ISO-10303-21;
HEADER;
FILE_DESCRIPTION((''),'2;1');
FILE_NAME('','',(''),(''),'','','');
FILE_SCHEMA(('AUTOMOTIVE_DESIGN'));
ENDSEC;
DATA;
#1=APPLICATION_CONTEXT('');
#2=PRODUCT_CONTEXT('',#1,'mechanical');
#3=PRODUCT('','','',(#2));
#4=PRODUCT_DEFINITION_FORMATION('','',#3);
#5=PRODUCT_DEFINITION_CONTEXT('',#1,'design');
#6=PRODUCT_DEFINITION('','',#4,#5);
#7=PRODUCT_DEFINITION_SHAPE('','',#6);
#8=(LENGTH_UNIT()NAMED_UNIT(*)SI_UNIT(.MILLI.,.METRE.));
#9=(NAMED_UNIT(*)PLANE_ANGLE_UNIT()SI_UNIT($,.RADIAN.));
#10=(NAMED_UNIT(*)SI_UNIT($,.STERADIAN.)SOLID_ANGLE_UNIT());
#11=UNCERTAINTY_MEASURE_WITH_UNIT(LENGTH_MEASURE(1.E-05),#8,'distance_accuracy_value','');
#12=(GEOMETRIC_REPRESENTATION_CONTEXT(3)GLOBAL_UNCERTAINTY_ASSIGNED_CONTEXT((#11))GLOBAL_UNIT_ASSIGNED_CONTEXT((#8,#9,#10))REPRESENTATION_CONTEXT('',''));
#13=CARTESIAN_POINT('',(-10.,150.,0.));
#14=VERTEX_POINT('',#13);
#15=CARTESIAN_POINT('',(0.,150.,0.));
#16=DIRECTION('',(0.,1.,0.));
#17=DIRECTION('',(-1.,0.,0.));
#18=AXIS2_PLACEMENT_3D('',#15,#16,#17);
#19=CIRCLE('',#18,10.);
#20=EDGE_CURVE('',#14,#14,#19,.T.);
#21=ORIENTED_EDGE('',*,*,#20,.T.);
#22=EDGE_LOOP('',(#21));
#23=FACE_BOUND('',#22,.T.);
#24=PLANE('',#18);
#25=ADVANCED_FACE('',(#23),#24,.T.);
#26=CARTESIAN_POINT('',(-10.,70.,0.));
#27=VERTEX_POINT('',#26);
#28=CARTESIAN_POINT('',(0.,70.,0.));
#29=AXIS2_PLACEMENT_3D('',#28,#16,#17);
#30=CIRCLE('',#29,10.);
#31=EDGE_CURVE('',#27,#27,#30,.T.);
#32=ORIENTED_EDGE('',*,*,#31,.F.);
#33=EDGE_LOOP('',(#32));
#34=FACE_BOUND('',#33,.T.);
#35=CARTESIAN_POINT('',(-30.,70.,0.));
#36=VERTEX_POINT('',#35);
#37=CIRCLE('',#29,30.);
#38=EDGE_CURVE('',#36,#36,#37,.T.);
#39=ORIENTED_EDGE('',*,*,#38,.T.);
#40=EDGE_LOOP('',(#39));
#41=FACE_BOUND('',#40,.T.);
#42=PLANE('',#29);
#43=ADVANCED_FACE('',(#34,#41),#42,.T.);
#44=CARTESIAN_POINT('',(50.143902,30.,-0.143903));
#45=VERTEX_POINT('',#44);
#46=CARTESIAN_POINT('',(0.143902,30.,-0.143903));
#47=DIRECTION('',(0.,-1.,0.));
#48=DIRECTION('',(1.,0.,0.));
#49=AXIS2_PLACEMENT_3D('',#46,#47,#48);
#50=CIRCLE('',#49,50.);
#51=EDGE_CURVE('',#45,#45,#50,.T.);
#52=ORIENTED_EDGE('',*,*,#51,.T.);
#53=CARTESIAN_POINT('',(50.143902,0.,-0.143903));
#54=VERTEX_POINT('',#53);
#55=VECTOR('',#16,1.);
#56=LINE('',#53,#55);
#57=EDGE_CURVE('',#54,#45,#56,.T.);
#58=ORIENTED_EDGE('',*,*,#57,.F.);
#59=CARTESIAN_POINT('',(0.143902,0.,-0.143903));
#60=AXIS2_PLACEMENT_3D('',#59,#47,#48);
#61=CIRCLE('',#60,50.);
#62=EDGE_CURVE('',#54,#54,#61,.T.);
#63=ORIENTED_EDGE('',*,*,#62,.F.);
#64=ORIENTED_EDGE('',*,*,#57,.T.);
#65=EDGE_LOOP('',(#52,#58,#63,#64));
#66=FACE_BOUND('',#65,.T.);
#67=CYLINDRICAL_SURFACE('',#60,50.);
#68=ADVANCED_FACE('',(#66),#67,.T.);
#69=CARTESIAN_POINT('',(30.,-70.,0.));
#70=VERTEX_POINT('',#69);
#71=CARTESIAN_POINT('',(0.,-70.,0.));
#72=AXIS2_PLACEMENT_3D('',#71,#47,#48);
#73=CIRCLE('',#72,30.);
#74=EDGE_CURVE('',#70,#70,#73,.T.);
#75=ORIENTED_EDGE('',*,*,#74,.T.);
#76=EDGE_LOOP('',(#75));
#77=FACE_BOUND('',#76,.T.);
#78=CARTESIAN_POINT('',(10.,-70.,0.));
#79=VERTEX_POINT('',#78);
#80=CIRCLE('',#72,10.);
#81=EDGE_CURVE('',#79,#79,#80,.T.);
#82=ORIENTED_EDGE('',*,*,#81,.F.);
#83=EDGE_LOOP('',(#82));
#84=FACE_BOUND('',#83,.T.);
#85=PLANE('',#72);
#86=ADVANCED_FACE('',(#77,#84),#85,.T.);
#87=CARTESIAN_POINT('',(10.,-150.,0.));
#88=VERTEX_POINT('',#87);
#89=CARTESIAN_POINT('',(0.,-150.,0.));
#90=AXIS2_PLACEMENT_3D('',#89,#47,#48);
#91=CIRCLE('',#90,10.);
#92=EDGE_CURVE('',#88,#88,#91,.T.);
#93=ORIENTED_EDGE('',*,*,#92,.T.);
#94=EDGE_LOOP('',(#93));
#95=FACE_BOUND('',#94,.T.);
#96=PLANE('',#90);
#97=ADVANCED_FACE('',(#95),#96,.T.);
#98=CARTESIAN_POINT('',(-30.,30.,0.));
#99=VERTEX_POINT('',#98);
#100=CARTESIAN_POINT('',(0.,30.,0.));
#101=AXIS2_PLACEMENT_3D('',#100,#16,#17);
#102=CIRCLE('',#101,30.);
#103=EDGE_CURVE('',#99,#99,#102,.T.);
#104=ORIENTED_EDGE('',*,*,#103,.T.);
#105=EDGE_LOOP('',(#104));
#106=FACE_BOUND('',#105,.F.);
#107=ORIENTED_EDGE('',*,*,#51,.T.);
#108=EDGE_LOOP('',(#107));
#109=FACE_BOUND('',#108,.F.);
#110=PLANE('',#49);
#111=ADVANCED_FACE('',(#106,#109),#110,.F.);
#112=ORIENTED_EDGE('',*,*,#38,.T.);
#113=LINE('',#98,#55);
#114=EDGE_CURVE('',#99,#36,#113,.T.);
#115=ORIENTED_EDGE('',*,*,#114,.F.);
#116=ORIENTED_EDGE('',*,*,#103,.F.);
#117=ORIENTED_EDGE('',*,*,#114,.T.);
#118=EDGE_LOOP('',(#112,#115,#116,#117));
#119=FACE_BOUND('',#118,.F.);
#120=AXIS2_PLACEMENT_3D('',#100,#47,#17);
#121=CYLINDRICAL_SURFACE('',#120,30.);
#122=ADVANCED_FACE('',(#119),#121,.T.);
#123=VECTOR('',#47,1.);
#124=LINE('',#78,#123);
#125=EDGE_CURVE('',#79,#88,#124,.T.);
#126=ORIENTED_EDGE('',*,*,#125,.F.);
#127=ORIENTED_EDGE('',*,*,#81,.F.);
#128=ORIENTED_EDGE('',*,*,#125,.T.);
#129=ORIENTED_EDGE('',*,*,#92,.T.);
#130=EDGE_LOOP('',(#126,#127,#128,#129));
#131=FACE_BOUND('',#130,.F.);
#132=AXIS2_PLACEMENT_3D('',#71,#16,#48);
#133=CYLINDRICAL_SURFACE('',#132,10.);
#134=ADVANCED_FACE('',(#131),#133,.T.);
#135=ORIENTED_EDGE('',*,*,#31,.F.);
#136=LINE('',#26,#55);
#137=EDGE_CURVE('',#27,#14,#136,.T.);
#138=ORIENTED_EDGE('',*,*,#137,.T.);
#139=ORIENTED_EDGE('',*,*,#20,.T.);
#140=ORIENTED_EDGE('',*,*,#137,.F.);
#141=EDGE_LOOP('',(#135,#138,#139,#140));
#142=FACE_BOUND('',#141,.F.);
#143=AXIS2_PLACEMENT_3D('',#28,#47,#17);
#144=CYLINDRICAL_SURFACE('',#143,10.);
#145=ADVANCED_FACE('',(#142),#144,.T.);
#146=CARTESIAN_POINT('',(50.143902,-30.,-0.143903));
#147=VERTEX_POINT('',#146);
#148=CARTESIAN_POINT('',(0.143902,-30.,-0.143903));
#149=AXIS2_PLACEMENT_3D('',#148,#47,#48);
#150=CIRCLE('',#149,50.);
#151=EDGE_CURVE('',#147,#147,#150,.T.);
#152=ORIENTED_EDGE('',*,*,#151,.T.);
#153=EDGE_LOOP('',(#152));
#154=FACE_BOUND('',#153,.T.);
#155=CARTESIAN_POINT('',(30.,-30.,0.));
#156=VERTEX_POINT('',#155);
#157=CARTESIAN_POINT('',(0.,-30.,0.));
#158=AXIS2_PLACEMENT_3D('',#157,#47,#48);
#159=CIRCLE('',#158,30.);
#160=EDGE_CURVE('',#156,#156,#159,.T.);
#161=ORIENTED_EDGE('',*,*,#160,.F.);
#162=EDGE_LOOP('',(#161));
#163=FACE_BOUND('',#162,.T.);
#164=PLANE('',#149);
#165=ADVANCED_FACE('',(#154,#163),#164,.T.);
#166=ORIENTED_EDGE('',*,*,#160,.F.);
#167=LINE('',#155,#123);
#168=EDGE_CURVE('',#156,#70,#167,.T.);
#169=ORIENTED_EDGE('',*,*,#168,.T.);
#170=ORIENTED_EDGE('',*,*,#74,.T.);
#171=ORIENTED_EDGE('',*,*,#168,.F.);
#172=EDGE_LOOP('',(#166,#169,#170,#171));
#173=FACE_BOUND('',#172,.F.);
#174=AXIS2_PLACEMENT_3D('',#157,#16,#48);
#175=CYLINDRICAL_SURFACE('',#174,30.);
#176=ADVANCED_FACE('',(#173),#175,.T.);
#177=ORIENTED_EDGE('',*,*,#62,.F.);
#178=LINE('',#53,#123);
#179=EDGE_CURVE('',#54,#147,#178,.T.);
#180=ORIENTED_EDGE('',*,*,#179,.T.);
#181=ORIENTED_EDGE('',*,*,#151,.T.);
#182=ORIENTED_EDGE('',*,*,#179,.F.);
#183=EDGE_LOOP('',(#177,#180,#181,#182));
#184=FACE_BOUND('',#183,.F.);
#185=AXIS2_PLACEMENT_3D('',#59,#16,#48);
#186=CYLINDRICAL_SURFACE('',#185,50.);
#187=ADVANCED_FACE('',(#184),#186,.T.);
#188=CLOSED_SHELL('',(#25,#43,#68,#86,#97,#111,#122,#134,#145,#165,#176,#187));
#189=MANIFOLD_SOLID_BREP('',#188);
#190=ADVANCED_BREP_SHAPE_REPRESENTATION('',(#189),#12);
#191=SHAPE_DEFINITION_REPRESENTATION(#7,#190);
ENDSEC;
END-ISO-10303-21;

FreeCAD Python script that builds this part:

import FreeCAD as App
import Part
import Sketcher

V = App.Vector
Q = App.Units.Quantity

doc = App.newDocument("Part")
body = doc.addObject("PartDesign::Body", "Body")

sketch1 = doc.addObject("Sketcher::SketchObject", "Sketch")
body.addObject(sketch1)
sketch1.AttachmentSupport = (doc.XZ_Plane, [""])
sketch1.MapMode = "FlatFace"
sketch1.addGeometry(Part.Circle(V(0, 0, 0), V(0, 0, 1), 50), False)
sketch1.addConstraint([
    Sketcher.Constraint("Diameter", 0, Q("100 mm")),
    Sketcher.Constraint("DistanceX", -1, 1, 0, 3, Q("0.143902 mm")),
    Sketcher.Constraint("DistanceY", 0, 3, -1, 1, Q("0.143903 mm")),
])
pad1 = doc.addObject("PartDesign::Pad", "Pad")
body.addObject(pad1)
pad1.Profile = sketch1
pad1.Length = 30
pad1.Reversed = True

sketch2 = doc.addObject("Sketcher::SketchObject", "Sketch001")
body.addObject(sketch2)
sketch2.AttachmentSupport = (doc.XZ_Plane, [""])
sketch2.MapMode = "FlatFace"
sketch2.addGeometry(Part.Circle(V(0, 0, 0), V(0, 0, 1), 50), False)
sketch2.addConstraint([
    Sketcher.Constraint("Diameter", 0, Q("100 mm")),
    Sketcher.Constraint("DistanceX", -1, 1, 0, 3, Q("0.143902 mm")),
    Sketcher.Constraint("DistanceY", 0, 3, -1, 1, Q("0.143903 mm")),
])
pad2 = doc.addObject("PartDesign::Pad", "Pad001")
body.addObject(pad2)
pad2.Profile = sketch2
pad2.Length = 30

sketch3 = doc.addObject("Sketcher::SketchObject", "Sketch002")
body.addObject(sketch3)
sketch3.AttachmentSupport = (doc.XZ_Plane, [""])
sketch3.MapMode = "FlatFace"
sketch3.AttachmentOffset = App.Placement(V(0, 0, -30), App.Rotation())
sketch3.addGeometry(Part.Circle(V(0, 0, 0), V(0, 0, 1), 30), False)
sketch3.addConstraint([
    Sketcher.Constraint("Coincident", 0, 3, -1, 1),
    Sketcher.Constraint("Diameter", 0, Q("60 mm")),
])
pad3 = doc.addObject("PartDesign::Pad", "Pad002")
body.addObject(pad3)
pad3.Profile = sketch3
pad3.Length = 40
pad3.Reversed = True

sketch4 = doc.addObject("Sketcher::SketchObject", "Sketch003")
body.addObject(sketch4)
sketch4.AttachmentSupport = (doc.XZ_Plane, [""])
sketch4.MapMode = "FlatFace"
sketch4.AttachmentOffset = App.Placement(V(0, 0, 30), App.Rotation())
sketch4.addGeometry(Part.Circle(V(0, 0, 0), V(0, 0, 1), 30), False)
sketch4.addConstraint([
    Sketcher.Constraint("Coincident", 0, 3, -1, 1),
    Sketcher.Constraint("Diameter", 0, Q("60 mm")),
])
pad4 = doc.addObject("PartDesign::Pad", "Pad003")
body.addObject(pad4)
pad4.Profile = sketch4
pad4.Length = 40

sketch5 = doc.addObject("Sketcher::SketchObject", "Sketch004")
body.addObject(sketch5)
sketch5.AttachmentSupport = (doc.XZ_Plane, [""])
sketch5.MapMode = "FlatFace"
sketch5.AttachmentOffset = App.Placement(V(0, 0, 70), App.Rotation())
sketch5.addGeometry(Part.Circle(V(0, 0, 0), V(0, 0, 1), 10), False)
sketch5.addConstraint([
    Sketcher.Constraint("Coincident", 0, 3, -1, 1),
    Sketcher.Constraint("Diameter", 0, Q("20 mm")),
])
pad5 = doc.addObject("PartDesign::Pad", "Pad004")
body.addObject(pad5)
pad5.Profile = sketch5
pad5.Length = 80

sketch6 = doc.addObject("Sketcher::SketchObject", "Sketch005")
body.addObject(sketch6)
sketch6.AttachmentSupport = (doc.XZ_Plane, [""])
sketch6.MapMode = "FlatFace"
sketch6.AttachmentOffset = App.Placement(V(0, 0, -70), App.Rotation())
sketch6.addGeometry(Part.Circle(V(0, 0, 0), V(0, 0, 1), 10), False)
sketch6.addConstraint([
    Sketcher.Constraint("Coincident", 0, 3, -1, 1),
    Sketcher.Constraint("Diameter", 0, Q("20 mm")),
])
pad6 = doc.addObject("PartDesign::Pad", "Pad005")
body.addObject(pad6)
pad6.Profile = sketch6
pad6.Length = 80
pad6.Reversed = True

doc.recompute()
